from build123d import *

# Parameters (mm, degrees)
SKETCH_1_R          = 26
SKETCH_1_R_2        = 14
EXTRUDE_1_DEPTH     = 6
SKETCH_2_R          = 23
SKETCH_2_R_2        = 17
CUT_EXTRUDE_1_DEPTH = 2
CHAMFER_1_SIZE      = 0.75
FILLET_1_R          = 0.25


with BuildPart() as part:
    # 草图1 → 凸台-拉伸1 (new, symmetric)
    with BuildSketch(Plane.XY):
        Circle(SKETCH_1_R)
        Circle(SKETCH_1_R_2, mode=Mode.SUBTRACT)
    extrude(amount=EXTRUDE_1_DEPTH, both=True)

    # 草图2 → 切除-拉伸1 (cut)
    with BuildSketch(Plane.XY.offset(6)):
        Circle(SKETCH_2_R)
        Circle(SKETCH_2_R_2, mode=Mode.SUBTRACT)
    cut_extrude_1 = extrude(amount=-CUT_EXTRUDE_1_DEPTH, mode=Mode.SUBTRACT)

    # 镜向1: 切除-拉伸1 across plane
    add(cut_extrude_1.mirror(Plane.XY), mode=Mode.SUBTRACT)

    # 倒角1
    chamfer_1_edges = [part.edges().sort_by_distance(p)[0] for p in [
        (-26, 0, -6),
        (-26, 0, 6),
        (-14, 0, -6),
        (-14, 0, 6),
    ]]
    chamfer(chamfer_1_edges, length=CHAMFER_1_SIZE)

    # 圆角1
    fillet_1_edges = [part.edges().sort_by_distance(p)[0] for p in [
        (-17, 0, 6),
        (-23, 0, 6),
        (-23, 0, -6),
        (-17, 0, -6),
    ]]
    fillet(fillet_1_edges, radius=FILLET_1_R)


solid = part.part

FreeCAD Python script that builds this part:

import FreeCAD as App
import Part
import Sketcher

V = App.Vector
Q = App.Units.Quantity


def edges_at(feature, points):
    """Names of the edges that pass closest to the given points."""
    edges = feature.Shape.Edges
    near = lambda p: min(range(len(edges)), key=lambda i: edges[i].distToShape(Part.Vertex(*p))[0])
    return sorted({f"Edge{near(p) + 1}" for p in points})

doc = App.newDocument("Part")
body = doc.addObject("PartDesign::Body", "Body")

sketch1 = body.newObject("Sketcher::SketchObject", "Sketch")
sketch1.AttachmentSupport = (doc.getObject("XY_Plane"), [""])
sketch1.MapMode = "FlatFace"
sketch1.addGeometry([
    Part.Circle(V(0, 0, 0), V(0, 0, 1), 26),
    Part.Circle(V(0, 0, 0), V(0, 0, 1), 14),
], False)
sketch1.addConstraint([
    Sketcher.Constraint("Coincident", 0, 3, -1, 1),
    Sketcher.Constraint("Coincident", 1, 3, -1, 1),
    Sketcher.Constraint("Diameter", 0, Q("52 mm")),
    Sketcher.Constraint("Diameter", 1, Q("28 mm")),
])
pad1 = body.newObject("PartDesign::Pad", "Pad")
pad1.Profile = sketch1
pad1.Length = 12
pad1.Midplane = True

sketch2 = body.newObject("Sketcher::SketchObject", "Sketch001")
sketch2.AttachmentSupport = (doc.getObject("XY_Plane"), [""])
sketch2.MapMode = "FlatFace"
sketch2.AttachmentOffset = App.Placement(V(0, 0, 6), App.Rotation())
sketch2.addGeometry([
    Part.Circle(V(0, 0, 0), V(0, 0, 1), 23),
    Part.Circle(V(0, 0, 0), V(0, 0, 1), 17),
], False)
sketch2.addConstraint([
    Sketcher.Constraint("Coincident", 0, 3, -1, 1),
    Sketcher.Constraint("Coincident", 1, 3, -1, 1),
    Sketcher.Constraint("Diameter", 0, Q("46 mm")),
    Sketcher.Constraint("Diameter", 1, Q("34 mm")),
])
pocket1 = body.newObject("PartDesign::Pocket", "Pocket")
pocket1.Profile = sketch2
pocket1.Length = 2
doc.recompute()

mirrored = body.newObject("PartDesign::Mirrored", "Mirrored")
mirrored.Originals = [pocket1]
mirrored.MirrorPlane = (doc.getObject("XY_Plane"), [""])
body.Tip = mirrored
doc.recompute()

chamfer = body.newObject("PartDesign::Chamfer", "Chamfer")
chamfer.Base = (mirrored, edges_at(mirrored, [
    (-26, 0, -6),
    (-26, 0, 6),
    (-14, 0, -6),
    (-14, 0, 6),
]))
chamfer.Size = 0.75
doc.recompute()

fillet = body.newObject("PartDesign::Fillet", "Fillet")
fillet.Base = (chamfer, edges_at(chamfer, [
    (-17, 0, 6),
    (-23, 0, 6),
    (-23, 0, -6),
    (-17, 0, -6),
]))
fillet.Radius = 0.25

doc.recompute()
